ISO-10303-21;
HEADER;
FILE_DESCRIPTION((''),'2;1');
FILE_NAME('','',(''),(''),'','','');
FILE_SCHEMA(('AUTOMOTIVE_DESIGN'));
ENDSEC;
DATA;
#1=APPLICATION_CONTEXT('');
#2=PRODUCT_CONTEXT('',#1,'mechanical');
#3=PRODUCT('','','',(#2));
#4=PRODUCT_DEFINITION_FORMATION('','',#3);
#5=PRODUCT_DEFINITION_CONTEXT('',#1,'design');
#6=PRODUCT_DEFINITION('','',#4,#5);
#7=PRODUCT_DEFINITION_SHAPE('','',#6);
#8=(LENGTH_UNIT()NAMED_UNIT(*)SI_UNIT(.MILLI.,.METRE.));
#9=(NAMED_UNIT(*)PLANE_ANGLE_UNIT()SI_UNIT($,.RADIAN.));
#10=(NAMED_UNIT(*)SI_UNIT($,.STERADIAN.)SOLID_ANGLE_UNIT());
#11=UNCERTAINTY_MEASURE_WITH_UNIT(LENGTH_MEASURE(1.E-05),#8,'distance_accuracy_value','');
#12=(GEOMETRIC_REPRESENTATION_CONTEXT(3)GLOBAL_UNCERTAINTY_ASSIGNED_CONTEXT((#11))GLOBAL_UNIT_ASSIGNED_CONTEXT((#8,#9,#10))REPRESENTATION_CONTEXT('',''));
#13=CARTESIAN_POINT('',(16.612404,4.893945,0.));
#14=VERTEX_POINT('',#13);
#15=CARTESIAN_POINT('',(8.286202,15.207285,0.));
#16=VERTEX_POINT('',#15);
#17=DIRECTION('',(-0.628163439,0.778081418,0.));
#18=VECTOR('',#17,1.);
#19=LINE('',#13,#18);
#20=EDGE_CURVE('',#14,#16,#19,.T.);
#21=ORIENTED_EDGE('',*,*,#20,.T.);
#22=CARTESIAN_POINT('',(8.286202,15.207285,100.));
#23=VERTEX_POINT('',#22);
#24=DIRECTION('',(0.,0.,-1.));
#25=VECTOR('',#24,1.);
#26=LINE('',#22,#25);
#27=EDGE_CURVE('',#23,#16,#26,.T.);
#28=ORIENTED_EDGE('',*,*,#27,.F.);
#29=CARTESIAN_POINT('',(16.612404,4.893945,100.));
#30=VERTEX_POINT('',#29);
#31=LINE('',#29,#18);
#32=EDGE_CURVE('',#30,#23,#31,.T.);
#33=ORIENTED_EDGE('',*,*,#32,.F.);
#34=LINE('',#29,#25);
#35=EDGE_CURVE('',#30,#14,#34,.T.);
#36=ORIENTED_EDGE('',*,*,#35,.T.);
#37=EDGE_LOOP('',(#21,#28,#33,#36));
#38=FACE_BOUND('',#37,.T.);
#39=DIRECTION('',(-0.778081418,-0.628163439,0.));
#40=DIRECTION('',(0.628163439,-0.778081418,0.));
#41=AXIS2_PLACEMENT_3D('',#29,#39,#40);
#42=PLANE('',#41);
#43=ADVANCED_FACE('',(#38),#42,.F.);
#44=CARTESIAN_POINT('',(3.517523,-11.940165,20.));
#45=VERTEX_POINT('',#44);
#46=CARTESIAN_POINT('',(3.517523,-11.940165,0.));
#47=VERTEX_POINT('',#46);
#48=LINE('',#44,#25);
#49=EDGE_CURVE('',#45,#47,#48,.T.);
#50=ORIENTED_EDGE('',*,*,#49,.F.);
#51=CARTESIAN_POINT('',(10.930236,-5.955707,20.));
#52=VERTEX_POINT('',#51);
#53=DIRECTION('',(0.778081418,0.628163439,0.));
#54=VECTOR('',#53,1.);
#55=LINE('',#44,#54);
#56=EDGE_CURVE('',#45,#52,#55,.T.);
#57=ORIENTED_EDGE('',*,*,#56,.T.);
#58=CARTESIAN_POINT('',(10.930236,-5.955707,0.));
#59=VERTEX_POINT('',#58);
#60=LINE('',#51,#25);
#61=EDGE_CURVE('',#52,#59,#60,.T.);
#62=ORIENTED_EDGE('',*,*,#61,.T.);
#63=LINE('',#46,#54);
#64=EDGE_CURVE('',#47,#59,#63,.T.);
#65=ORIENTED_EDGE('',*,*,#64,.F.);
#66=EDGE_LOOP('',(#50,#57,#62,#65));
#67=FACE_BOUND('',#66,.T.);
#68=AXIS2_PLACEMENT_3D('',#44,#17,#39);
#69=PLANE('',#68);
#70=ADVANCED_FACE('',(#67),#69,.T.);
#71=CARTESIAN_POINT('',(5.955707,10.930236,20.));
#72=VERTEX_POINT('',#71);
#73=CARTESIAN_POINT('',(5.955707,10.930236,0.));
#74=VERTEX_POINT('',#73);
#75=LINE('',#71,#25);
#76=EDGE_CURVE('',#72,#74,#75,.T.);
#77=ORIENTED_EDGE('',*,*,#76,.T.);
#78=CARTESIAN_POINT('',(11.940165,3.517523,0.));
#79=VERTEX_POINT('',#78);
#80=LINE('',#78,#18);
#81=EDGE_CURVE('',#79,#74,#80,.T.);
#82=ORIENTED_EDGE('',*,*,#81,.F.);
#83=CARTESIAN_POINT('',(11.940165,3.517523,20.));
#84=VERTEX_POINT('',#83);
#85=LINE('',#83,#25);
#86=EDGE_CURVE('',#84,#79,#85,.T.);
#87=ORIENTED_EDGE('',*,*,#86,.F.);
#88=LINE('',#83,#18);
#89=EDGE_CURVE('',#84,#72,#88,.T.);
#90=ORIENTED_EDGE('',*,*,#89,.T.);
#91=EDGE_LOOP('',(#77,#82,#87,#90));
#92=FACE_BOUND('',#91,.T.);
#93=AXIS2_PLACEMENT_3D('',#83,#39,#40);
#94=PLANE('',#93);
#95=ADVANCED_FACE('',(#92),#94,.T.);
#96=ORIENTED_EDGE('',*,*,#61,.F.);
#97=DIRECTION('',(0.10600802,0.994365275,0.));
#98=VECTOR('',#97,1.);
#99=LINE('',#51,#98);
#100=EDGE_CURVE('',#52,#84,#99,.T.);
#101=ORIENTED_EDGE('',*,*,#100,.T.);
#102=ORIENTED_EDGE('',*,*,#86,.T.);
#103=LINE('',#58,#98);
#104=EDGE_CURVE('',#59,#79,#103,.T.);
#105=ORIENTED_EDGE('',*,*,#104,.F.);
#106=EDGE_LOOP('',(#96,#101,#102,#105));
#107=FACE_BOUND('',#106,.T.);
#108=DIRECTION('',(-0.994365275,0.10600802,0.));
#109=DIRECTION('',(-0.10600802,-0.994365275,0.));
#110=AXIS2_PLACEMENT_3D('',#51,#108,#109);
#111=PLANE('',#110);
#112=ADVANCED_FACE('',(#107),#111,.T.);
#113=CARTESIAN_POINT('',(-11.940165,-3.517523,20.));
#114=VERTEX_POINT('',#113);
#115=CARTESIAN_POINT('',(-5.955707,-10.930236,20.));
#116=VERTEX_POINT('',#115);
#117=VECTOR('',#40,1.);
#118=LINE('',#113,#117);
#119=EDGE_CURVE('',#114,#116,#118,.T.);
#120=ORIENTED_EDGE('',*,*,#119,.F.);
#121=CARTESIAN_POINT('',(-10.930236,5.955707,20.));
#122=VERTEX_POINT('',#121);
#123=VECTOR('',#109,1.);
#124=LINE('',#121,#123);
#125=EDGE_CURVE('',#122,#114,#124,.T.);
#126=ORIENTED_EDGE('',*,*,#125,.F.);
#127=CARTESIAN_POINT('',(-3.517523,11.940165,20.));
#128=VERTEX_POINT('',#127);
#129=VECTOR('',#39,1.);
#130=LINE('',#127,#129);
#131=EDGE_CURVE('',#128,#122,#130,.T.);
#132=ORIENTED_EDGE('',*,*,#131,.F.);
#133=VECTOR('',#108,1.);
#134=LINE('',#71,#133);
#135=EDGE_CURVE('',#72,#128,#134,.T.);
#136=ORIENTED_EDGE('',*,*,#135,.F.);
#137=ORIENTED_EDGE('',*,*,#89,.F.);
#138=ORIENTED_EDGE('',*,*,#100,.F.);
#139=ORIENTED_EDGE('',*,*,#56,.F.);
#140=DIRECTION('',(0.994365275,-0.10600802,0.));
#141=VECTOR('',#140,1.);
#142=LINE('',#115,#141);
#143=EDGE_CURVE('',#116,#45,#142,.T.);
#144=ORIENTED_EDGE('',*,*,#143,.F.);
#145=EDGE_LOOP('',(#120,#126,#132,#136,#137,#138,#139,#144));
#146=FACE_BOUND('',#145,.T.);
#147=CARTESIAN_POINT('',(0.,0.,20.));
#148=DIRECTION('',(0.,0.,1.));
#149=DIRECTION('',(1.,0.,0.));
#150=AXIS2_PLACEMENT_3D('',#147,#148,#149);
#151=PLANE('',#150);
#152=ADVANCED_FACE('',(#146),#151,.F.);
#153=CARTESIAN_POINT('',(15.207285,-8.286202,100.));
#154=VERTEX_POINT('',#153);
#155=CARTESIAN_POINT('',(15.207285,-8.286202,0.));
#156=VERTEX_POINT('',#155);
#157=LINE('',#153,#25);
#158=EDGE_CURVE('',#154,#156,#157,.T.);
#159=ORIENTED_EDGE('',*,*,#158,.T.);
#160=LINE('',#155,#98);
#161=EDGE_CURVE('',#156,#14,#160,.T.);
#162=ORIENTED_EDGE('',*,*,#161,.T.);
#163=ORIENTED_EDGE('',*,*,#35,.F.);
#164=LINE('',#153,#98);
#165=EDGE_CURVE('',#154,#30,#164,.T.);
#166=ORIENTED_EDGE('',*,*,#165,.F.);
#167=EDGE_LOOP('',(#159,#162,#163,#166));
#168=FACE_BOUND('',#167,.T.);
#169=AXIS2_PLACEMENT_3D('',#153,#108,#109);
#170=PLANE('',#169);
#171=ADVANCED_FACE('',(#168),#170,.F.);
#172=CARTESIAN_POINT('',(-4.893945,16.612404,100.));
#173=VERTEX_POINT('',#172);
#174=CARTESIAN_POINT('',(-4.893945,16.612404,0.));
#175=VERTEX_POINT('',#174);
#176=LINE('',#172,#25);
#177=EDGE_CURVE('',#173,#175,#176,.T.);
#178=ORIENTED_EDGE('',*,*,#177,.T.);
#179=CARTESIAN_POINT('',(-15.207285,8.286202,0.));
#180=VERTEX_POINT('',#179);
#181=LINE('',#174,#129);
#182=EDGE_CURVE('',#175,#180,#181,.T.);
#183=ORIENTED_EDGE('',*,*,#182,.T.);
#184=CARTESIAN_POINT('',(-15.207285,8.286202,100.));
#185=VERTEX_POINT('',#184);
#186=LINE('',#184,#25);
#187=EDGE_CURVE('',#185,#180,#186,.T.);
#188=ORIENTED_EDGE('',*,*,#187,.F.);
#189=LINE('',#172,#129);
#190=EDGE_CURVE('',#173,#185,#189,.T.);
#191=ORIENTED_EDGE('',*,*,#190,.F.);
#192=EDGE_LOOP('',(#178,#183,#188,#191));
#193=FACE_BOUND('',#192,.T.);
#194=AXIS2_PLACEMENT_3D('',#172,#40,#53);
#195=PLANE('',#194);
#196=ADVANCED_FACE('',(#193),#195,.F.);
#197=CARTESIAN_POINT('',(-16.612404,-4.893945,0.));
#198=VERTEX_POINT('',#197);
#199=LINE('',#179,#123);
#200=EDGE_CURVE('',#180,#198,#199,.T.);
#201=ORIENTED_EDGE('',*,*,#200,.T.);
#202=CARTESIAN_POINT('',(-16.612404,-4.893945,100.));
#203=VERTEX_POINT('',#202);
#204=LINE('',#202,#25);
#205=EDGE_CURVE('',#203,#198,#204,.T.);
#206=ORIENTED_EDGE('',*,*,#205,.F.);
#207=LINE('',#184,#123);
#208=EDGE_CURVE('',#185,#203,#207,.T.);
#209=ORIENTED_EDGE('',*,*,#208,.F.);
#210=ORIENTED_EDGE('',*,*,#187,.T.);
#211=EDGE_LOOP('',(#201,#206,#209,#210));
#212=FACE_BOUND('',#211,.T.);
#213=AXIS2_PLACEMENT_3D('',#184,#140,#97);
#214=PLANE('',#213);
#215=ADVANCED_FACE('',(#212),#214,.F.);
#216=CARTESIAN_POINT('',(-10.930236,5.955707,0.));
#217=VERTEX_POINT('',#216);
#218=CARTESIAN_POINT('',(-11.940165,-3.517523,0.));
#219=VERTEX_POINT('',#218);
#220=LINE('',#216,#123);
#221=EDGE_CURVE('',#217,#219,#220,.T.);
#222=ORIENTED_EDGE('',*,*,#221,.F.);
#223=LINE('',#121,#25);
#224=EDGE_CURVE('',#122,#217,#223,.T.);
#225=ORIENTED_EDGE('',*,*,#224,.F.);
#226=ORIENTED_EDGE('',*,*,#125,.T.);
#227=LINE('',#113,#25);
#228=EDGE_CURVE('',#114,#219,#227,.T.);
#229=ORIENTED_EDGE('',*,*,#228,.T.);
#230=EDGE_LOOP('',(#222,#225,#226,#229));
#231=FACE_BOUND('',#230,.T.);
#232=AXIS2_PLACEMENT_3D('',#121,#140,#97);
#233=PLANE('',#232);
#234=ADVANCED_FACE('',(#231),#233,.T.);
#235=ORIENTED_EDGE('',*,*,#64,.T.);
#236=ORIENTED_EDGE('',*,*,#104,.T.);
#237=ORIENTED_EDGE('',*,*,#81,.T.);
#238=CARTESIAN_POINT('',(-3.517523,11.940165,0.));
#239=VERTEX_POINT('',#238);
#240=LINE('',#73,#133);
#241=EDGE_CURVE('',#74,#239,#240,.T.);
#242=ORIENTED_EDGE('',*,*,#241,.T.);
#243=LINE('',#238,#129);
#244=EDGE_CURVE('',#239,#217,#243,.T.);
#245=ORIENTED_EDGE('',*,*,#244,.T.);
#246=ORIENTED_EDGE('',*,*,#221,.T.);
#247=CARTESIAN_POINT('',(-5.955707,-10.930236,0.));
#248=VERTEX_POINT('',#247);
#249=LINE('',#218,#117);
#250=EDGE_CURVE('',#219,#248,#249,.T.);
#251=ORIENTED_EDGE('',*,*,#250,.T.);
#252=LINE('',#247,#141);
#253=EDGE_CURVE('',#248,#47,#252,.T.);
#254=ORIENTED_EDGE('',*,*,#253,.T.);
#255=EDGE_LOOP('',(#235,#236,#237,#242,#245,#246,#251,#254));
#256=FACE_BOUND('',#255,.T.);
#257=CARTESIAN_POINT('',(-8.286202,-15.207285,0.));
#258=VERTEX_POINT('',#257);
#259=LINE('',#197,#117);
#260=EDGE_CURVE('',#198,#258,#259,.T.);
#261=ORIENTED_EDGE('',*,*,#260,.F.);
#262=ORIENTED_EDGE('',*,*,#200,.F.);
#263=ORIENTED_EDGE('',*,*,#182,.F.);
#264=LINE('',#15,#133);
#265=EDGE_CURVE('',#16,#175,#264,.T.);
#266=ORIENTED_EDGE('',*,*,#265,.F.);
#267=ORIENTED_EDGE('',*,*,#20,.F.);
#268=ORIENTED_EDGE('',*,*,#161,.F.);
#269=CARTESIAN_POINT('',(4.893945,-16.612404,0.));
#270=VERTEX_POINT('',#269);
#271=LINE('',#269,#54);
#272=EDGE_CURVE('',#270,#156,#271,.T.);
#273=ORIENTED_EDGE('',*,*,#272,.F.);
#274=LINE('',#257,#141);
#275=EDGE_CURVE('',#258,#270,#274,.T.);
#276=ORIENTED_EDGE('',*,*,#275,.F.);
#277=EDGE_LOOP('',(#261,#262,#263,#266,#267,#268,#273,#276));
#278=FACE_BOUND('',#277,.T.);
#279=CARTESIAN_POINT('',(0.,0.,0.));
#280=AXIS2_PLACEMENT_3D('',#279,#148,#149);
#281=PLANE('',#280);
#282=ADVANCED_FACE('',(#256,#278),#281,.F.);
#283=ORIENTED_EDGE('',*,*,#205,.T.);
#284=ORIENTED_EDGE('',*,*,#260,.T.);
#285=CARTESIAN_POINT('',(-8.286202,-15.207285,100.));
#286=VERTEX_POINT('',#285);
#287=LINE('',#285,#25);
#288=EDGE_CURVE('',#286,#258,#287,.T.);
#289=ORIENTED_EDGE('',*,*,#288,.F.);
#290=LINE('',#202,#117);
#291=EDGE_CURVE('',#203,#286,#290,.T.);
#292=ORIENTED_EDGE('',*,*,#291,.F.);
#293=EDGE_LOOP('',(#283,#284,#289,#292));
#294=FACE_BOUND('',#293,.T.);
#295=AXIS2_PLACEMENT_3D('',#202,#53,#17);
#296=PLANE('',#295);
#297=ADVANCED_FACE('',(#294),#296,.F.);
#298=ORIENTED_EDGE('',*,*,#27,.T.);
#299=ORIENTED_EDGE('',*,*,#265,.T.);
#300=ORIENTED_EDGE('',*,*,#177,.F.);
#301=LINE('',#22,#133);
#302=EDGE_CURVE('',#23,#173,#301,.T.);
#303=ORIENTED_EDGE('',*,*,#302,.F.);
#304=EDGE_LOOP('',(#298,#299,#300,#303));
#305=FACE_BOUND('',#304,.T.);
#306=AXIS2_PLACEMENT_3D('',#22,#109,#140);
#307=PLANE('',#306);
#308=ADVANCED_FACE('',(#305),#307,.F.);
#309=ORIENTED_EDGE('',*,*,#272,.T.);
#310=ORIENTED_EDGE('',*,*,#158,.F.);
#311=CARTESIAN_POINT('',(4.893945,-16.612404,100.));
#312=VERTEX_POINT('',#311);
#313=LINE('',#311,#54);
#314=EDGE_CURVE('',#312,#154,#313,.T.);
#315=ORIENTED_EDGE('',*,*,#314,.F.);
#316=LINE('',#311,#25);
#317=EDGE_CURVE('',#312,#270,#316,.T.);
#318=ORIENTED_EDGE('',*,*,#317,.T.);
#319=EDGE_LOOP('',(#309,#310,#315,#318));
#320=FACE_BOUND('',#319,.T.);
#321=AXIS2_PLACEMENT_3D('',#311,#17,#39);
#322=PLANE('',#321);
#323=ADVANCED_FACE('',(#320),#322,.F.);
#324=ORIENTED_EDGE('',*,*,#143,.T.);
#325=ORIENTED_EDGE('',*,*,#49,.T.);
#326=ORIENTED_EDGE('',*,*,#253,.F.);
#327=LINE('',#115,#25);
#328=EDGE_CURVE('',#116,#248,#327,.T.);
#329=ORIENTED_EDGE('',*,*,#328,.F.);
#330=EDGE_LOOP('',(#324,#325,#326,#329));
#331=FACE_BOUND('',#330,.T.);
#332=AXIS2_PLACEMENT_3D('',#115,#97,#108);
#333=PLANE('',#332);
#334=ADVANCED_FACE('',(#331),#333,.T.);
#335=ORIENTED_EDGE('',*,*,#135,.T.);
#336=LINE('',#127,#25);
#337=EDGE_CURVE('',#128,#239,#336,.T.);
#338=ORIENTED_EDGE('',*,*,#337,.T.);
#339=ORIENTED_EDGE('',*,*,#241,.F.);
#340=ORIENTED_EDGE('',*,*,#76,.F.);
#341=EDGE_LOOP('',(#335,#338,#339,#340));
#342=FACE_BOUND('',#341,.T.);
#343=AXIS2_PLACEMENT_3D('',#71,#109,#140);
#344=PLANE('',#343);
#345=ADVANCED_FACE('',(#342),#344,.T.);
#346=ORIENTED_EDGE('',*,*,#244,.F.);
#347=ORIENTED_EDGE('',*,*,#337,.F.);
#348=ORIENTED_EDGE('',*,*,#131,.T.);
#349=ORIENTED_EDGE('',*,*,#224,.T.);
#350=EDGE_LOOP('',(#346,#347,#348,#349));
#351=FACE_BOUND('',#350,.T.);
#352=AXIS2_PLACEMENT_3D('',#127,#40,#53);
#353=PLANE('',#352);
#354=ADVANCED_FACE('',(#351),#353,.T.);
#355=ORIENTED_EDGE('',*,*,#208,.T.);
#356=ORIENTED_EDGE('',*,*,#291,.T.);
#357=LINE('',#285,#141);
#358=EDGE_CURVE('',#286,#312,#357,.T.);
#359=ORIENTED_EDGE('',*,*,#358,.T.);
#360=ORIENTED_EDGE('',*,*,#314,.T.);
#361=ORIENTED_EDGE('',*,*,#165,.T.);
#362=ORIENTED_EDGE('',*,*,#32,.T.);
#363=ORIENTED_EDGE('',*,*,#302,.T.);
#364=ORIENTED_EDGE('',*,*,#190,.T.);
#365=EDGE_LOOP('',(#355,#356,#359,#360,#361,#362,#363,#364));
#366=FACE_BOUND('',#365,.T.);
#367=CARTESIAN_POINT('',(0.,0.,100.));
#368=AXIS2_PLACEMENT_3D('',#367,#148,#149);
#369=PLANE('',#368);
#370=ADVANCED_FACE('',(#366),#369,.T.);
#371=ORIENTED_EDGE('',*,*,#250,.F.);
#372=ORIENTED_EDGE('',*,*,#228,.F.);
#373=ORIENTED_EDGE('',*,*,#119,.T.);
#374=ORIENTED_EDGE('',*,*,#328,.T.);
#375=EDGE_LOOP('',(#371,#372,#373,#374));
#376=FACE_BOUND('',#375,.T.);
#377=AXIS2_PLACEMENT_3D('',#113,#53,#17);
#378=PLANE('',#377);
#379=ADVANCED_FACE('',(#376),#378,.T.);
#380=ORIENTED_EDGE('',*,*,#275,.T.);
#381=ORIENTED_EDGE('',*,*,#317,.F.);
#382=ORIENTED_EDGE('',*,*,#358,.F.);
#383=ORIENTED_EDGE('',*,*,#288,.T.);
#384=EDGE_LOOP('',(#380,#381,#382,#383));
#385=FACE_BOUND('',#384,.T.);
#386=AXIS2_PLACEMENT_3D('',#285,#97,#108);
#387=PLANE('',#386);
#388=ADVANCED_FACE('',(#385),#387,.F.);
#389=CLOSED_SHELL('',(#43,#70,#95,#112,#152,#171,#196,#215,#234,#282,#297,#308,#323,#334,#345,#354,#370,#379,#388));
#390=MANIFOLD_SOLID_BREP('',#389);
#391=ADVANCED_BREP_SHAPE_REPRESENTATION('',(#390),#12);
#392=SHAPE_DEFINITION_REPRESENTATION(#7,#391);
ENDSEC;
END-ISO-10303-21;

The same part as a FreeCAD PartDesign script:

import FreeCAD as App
import Part
import Sketcher

V = App.Vector
Q = App.Units.Quantity

doc = App.newDocument("Part")
body = doc.addObject("PartDesign::Body", "Body")

# Sketch on XY plane
sketch1 = doc.addObject("Sketcher::SketchObject", "Sketch")
body.addObject(sketch1)
sketch1.AttachmentSupport = (doc.XY_Plane, [""])
sketch1.MapMode = "FlatFace"
sketch1.addGeometry([
    Part.LineSegment(V(15, -8, 0), V(17, 5, 0)),  # 0
    Part.LineSegment(V(17, 5, 0), V(8, 15, 0)),  # 1
    Part.LineSegment(V(8, 15, 0), V(-5, 17, 0)),  # 2
    Part.LineSegment(V(-5, 17, 0), V(-15, 8, 0)),  # 3
    Part.LineSegment(V(-15, 8, 0), V(-17, -5, 0)),  # 4
    Part.LineSegment(V(-17, -5, 0), V(-8, -15, 0)),  # 5
    Part.LineSegment(V(-8, -15, 0), V(5, -17, 0)),  # 6
    Part.LineSegment(V(5, -17, 0), V(15, -8, 0)),  # 7
], False)
sketch1.addConstraint([
    Sketcher.Constraint("Coincident", 0, 2, 1, 1),
    Sketcher.Constraint("Coincident", 1, 2, 2, 1),
    Sketcher.Constraint("Coincident", 2, 2, 3, 1),
    Sketcher.Constraint("Coincident", 3, 2, 4, 1),
    Sketcher.Constraint("Coincident", 4, 2, 5, 1),
    Sketcher.Constraint("Coincident", 5, 2, 6, 1),
    Sketcher.Constraint("Coincident", 6, 2, 7, 1),
    Sketcher.Constraint("Coincident", 7, 2, 0, 1),
    Sketcher.Constraint("Symmetric", 0, 2, 4, 2, -1, 1),
    Sketcher.Constraint("Symmetric", 1, 2, 5, 2, -1, 1),
    Sketcher.Constraint("Symmetric", 2, 2, 6, 2, -1, 1),
    Sketcher.Constraint("Symmetric", 3, 2, 7, 2, -1, 1),
    Sketcher.Constraint("Perpendicular", 0, 2),
    Sketcher.Constraint("Perpendicular", 1, 3),
    Sketcher.Constraint("Equal", 0, 1),
    Sketcher.Constraint("Equal", 1, 2),
    Sketcher.Constraint("Equal", 2, 3),
    Sketcher.Constraint("DistanceX", -1, 1, 1, 2, Q("8.286202 mm")),
    Sketcher.Constraint("DistanceY", 0, 2, 1, 2, Q("10.31334 mm")),
    Sketcher.Constraint("DistanceY", 1, 2, 2, 2, Q("1.405119 mm")),
])
pad1 = doc.addObject("PartDesign::Pad", "Pad")
body.addObject(pad1)
pad1.Profile = sketch1
pad1.Length = 100

# Sketch on XY plane
sketch2 = doc.addObject("Sketcher::SketchObject", "Sketch001")
body.addObject(sketch2)
sketch2.AttachmentSupport = (doc.XY_Plane, [""])
sketch2.MapMode = "FlatFace"
sketch2.addGeometry([
    Part.LineSegment(V(11, -6, 0), V(12, 4, 0)),  # 0
    Part.LineSegment(V(12, 4, 0), V(6, 11, 0)),  # 1
    Part.LineSegment(V(6, 11, 0), V(-4, 12, 0)),  # 2
    Part.LineSegment(V(-4, 12, 0), V(-11, 6, 0)),  # 3
    Part.LineSegment(V(-11, 6, 0), V(-12, -4, 0)),  # 4
    Part.LineSegment(V(-12, -4, 0), V(-6, -11, 0)),  # 5
    Part.LineSegment(V(-6, -11, 0), V(4, -12, 0)),  # 6
    Part.LineSegment(V(4, -12, 0), V(11, -6, 0)),  # 7
], False)
sketch2.addConstraint([
    Sketcher.Constraint("Coincident", 0, 2, 1, 1),
    Sketcher.Constraint("Coincident", 1, 2, 2, 1),
    Sketcher.Constraint("Coincident", 2, 2, 3, 1),
    Sketcher.Constraint("Coincident", 3, 2, 4, 1),
    Sketcher.Constraint("Coincident", 4, 2, 5, 1),
    Sketcher.Constraint("Coincident", 5, 2, 6, 1),
    Sketcher.Constraint("Coincident", 6, 2, 7, 1),
    Sketcher.Constraint("Coincident", 7, 2, 0, 1),
    Sketcher.Constraint("Symmetric", 0, 2, 4, 2, -1, 1),
    Sketcher.Constraint("Symmetric", 1, 2, 5, 2, -1, 1),
    Sketcher.Constraint("Symmetric", 2, 2, 6, 2, -1, 1),
    Sketcher.Constraint("Symmetric", 3, 2, 7, 2, -1, 1),
    Sketcher.Constraint("Perpendicular", 0, 2),
    Sketcher.Constraint("Perpendicular", 1, 3),
    Sketcher.Constraint("Equal", 0, 1),
    Sketcher.Constraint("Equal", 1, 2),
    Sketcher.Constraint("Equal", 2, 3),
    Sketcher.Constraint("DistanceX", 3, 2, 0, 2, Q("22.870401 mm")),
    Sketcher.Constraint("Distance", 0, Q("9.526912 mm")),
    Sketcher.Constraint("DistanceX", 2, 2, 1, 2, Q("9.47323 mm")),
])
pocket1 = doc.addObject("PartDesign::Pocket", "Pocket")
body.addObject(pocket1)
pocket1.Profile = sketch2
pocket1.Length = 20
pocket1.Reversed = True

doc.recompute()
